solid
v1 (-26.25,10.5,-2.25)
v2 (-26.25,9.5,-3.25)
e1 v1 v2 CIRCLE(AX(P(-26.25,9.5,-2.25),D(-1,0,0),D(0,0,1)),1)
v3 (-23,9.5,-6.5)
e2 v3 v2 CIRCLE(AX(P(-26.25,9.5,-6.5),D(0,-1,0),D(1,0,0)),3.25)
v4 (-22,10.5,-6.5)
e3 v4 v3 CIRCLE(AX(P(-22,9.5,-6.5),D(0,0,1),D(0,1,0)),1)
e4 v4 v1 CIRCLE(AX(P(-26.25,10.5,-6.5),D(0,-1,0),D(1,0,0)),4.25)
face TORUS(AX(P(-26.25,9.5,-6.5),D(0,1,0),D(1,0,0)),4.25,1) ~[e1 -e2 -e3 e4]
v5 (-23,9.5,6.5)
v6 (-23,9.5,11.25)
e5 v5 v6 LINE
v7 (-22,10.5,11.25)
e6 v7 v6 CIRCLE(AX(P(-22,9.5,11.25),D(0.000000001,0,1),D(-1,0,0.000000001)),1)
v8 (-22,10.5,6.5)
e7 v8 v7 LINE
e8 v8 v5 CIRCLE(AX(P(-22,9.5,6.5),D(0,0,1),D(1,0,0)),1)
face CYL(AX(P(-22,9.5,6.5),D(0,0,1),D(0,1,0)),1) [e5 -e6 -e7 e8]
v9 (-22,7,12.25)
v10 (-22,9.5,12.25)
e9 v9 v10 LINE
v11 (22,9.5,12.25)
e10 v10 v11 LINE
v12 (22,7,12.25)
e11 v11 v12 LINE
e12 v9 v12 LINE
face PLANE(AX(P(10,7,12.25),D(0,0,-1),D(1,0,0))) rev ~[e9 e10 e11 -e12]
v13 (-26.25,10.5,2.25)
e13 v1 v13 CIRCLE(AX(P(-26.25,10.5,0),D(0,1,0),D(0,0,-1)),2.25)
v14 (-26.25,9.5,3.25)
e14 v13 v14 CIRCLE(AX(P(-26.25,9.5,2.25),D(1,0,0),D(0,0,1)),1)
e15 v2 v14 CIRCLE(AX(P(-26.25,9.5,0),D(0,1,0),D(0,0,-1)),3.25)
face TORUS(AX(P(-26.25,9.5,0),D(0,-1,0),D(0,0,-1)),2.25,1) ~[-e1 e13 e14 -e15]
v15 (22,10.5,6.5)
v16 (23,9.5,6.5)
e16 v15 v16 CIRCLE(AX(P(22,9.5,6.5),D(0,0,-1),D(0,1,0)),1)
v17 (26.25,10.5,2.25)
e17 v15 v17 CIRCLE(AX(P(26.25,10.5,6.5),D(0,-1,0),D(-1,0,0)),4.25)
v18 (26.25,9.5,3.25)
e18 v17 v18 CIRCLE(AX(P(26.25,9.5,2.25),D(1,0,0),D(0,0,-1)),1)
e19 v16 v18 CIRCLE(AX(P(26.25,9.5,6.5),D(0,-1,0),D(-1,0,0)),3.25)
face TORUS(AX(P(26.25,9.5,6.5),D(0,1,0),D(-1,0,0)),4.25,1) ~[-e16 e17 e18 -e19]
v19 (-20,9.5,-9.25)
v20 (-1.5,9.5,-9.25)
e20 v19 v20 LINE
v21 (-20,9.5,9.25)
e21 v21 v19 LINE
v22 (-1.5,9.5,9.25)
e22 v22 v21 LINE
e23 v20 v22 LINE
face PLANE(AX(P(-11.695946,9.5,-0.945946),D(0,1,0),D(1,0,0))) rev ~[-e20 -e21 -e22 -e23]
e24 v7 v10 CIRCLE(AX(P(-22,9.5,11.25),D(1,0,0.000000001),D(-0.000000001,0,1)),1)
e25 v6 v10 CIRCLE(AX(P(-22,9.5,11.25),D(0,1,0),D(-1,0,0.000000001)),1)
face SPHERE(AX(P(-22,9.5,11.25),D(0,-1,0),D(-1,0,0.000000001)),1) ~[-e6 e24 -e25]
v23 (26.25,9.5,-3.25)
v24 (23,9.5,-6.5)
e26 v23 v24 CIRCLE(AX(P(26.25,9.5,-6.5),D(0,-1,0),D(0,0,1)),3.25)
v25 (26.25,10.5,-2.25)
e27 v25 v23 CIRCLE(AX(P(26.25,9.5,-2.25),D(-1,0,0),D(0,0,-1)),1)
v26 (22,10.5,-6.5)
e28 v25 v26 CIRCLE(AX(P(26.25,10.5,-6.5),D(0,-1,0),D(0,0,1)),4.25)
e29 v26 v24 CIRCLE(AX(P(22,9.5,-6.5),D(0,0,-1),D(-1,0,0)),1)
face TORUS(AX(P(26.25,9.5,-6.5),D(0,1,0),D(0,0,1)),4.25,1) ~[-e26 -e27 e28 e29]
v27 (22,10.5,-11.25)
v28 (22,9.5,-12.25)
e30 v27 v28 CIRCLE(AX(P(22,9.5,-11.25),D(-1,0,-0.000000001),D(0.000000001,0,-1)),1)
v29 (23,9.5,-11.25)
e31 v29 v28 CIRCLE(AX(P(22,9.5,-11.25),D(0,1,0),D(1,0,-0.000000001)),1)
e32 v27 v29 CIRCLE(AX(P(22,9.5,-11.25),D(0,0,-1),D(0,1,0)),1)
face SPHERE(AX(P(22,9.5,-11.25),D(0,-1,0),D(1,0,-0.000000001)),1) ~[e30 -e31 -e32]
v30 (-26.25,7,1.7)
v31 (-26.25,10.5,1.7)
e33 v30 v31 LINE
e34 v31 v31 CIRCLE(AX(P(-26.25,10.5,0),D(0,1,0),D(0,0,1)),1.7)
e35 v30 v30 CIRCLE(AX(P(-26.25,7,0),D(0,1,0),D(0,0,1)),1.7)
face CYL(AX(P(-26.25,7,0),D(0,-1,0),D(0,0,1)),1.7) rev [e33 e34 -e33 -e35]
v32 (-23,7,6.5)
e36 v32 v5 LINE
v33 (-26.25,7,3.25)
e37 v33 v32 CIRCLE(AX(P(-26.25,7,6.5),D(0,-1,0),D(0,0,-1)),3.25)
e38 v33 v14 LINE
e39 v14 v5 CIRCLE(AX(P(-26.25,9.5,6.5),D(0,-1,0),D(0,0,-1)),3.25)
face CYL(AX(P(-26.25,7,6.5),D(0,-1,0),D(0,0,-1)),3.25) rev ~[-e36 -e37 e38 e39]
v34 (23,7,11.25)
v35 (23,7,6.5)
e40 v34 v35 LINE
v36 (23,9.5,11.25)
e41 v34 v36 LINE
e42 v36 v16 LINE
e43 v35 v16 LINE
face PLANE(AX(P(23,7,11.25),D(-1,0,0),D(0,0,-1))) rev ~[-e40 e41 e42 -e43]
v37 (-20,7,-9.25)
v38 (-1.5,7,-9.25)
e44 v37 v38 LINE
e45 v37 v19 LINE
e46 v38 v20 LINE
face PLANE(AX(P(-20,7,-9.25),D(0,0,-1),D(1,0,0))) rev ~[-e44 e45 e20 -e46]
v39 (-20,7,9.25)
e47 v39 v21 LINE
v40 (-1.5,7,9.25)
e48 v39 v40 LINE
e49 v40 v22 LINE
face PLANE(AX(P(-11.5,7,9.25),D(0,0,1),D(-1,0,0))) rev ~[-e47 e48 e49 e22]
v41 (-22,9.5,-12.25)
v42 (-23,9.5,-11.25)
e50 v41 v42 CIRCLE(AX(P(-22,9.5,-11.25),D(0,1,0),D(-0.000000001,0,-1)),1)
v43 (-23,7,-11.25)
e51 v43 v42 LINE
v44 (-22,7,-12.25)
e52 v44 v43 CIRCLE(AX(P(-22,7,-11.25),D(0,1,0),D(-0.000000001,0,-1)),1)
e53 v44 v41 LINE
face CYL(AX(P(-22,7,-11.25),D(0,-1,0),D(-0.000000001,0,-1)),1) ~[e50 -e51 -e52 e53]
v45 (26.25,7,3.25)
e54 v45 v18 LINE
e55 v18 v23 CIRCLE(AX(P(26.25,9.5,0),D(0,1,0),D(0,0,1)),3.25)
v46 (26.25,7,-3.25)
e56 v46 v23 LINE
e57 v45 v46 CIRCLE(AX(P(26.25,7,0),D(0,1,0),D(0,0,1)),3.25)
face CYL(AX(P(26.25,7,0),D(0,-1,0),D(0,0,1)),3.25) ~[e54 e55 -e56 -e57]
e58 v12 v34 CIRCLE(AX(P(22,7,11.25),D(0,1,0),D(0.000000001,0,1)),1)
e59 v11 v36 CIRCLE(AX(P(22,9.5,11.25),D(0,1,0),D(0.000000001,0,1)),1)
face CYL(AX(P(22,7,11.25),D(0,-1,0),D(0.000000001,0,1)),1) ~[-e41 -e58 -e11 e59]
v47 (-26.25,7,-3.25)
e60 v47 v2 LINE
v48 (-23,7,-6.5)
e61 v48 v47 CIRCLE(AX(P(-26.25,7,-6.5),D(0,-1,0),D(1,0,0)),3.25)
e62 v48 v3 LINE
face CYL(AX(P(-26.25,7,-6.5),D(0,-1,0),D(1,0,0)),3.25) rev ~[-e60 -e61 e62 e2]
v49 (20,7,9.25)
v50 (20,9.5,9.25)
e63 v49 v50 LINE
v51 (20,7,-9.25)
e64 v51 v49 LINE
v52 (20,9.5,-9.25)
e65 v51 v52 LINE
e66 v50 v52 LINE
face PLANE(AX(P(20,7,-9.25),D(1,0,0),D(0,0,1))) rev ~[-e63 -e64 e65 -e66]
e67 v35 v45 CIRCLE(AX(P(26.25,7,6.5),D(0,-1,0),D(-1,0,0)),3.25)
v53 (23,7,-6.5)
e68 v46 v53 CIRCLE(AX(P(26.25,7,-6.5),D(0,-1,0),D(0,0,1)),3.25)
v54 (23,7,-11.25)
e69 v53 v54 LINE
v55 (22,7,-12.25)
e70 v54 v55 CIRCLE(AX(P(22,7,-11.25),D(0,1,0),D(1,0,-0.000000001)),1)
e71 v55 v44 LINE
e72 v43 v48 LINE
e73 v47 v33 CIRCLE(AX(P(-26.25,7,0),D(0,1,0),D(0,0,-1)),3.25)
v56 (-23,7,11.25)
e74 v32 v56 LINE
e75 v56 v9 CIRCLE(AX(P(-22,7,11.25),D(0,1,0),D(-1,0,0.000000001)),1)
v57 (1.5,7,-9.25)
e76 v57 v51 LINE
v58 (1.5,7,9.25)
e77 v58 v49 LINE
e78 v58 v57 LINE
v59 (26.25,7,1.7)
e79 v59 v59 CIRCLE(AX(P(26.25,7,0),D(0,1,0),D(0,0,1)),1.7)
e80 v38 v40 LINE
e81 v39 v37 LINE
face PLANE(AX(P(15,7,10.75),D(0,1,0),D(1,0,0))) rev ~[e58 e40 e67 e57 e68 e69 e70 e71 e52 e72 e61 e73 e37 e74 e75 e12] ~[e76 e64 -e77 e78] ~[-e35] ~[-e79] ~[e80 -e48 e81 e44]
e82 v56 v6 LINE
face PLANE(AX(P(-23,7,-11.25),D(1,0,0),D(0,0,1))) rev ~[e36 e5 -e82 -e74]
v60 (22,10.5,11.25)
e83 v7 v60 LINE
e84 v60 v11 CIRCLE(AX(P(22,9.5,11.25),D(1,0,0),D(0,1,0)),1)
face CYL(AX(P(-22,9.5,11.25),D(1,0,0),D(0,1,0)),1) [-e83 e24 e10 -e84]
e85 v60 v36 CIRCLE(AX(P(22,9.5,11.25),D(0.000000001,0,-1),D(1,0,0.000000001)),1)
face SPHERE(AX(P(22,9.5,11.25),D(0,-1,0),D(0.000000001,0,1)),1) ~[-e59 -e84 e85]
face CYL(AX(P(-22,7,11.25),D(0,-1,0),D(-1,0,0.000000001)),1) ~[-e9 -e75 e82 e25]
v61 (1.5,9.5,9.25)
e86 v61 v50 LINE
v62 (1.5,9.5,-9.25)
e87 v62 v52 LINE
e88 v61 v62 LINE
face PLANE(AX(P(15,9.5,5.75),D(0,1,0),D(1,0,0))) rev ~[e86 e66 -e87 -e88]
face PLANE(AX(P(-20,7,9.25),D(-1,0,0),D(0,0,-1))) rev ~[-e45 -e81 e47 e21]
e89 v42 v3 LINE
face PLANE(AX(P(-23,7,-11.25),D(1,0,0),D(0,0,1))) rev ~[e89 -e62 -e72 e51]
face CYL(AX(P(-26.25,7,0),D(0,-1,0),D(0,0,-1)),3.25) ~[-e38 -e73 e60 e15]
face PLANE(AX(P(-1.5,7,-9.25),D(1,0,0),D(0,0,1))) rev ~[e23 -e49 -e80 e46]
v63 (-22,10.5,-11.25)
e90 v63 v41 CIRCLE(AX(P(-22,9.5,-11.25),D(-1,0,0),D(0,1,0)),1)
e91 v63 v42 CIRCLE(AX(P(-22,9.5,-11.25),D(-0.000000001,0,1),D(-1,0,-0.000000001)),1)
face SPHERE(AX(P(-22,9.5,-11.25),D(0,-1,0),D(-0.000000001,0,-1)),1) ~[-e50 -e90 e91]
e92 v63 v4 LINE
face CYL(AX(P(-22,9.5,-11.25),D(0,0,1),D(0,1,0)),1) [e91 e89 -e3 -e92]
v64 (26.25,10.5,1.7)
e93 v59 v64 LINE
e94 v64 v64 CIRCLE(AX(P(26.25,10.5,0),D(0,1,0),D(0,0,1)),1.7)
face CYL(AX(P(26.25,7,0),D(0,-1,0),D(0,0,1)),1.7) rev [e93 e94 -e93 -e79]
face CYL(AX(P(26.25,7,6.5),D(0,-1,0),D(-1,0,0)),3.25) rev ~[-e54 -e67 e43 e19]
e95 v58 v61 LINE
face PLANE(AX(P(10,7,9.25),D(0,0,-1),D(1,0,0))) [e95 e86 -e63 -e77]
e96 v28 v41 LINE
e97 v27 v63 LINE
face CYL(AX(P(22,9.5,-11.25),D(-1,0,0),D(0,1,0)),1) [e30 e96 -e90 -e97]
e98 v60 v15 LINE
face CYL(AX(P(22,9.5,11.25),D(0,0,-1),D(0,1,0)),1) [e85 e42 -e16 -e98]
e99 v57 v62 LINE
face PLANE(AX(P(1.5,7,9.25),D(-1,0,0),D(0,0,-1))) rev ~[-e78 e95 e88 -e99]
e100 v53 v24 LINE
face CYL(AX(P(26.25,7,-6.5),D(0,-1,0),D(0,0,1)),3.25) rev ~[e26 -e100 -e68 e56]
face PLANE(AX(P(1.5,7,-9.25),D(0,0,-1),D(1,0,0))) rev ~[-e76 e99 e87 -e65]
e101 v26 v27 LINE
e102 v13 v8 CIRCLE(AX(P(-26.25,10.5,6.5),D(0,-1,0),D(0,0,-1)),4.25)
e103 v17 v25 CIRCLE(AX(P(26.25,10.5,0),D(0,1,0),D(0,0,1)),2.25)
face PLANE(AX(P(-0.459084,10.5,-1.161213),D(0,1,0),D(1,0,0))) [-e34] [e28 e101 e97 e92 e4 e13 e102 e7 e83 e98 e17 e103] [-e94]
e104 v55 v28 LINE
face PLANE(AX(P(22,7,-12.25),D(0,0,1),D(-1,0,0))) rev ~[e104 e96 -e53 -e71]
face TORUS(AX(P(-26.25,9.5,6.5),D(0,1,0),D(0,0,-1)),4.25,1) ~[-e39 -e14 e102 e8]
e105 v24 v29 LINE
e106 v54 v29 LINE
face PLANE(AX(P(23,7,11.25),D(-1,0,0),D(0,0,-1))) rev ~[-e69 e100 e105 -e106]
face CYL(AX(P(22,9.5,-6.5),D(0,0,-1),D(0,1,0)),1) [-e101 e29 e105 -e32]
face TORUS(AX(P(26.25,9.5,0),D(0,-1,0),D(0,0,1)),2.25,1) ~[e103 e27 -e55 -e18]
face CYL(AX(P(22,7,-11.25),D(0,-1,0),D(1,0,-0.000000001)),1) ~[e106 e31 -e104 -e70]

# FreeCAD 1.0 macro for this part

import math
import FreeCAD as App
import Part
import Sketcher

V = App.Vector


def edges_at(feature, points):
    """Names of the edges that pass closest to the given points."""
    edges = feature.Shape.Edges
    near = lambda p: min(range(len(edges)), key=lambda i: edges[i].distToShape(Part.Vertex(*p))[0])
    return sorted({f"Edge{near(p) + 1}" for p in points})

doc = App.newDocument("Part")
params = doc.addObject("Spreadsheet::Sheet", "Params")
for row, (alias, value) in enumerate([
    ("sketch1_radius", "1 mm"),
    ("sketch1_diameter", "3.4 mm"),
    ("sketch1_width", "44 mm"),
    ("sketch1_radius2", "3.25 mm"),
    ("pad1_length", "1 mm"),
    ("sketch2_radius", "1 mm"),
    ("sketch2_diameter", "3.4 mm"),
    ("sketch2_width", "2 mm"),
    ("sketch2_width2", "44 mm"),
    ("sketch2_width3", "10 mm"),
    ("pad2_length", "1 mm"),
    ("sketch3_radius", "1 mm"),
    ("sketch3_diameter", "3.4 mm"),
    ("sketch3_width", "2 mm"),
    ("sketch3_width2", "44 mm"),
    ("sketch3_height", "3 mm"),
    ("pad3_length", "3 mm"),
    ("sketch4_radius", "1 mm"),
    ("sketch4_diameter", "3.4 mm"),
    ("sketch4_width", "44 mm"),
    ("sketch4_radius2", "3.25 mm"),
    ("sketch4_width2", "18.5 mm"),
    ("pad4_length", "2.5 mm"),
    ("sketch5_radius", "1 mm"),
    ("sketch5_diameter", "3.4 mm"),
    ("sketch5_width", "44 mm"),
    ("sketch5_radius2", "3.25 mm"),
    ("pad5_length", "1 mm"),
    ("fillet_radius", "1 mm"),
], start=1):
    params.set(f"A{row}", alias)
    params.set(f"B{row}", "=" + value)
    params.setAlias(f"B{row}", alias)

body = doc.addObject("PartDesign::Body", "Body")

# Sketch on XZ plane
sketch1 = doc.addObject("Sketcher::SketchObject", "Sketch")
body.addObject(sketch1)
sketch1.AttachmentSupport = (doc.XZ_Plane, [""])
sketch1.MapMode = "FlatFace"
sketch1.addGeometry([
    Part.ArcOfCircle(Part.Circle(V(-26.2, 6.5, 0), V(0, 0, 1), 3.2), math.radians(-90), math.radians(0)),  # 0
    Part.LineSegment(V(-23, 6.5, 0), V(-23, 11.2, 0)),  # 1
    Part.ArcOfCircle(Part.Circle(V(-22, 11.2, 0), V(0, 0, 1), 1), math.radians(90), math.radians(180)),  # 2
    Part.LineSegment(V(-22, 12.2, 0), V(22, 12.2, 0)),  # 3
    Part.ArcOfCircle(Part.Circle(V(22, 11.2, 0), V(0, 0, 1), 1), math.radians(0), math.radians(90)),  # 4
    Part.LineSegment(V(23, 11.2, 0), V(23, 6.5, 0)),  # 5
    Part.ArcOfCircle(Part.Circle(V(26.2, 6.5, 0), V(0, 0, 1), 3.2), math.radians(180), math.radians(270)),  # 6
    Part.ArcOfCircle(Part.Circle(V(26.2, 0, 0), V(0, 0, 1), 3.2), math.radians(-90), math.radians(90)),  # 7
    Part.ArcOfCircle(Part.Circle(V(26.2, -6.5, 0), V(0, 0, 1), 3.2), math.radians(90), math.radians(180)),  # 8
    Part.LineSegment(V(23, -6.5, 0), V(23, -11.2, 0)),  # 9
    Part.ArcOfCircle(Part.Circle(V(22, -11.2, 0), V(0, 0, 1), 1), math.radians(-90), math.radians(0)),  # 10
    Part.LineSegment(V(22, -12.2, 0), V(-22, -12.2, 0)),  # 11
    Part.ArcOfCircle(Part.Circle(V(-22, -11.2, 0), V(0, 0, 1), 1), math.radians(-180), math.radians(-90)),  # 12
    Part.LineSegment(V(-23, -11.2, 0), V(-23, -6.5, 0)),  # 13
    Part.ArcOfCircle(Part.Circle(V(-26.2, -6.5, 0), V(0, 0, 1), 3.2), math.radians(0), math.radians(90)),  # 14
    Part.ArcOfCircle(Part.Circle(V(-26.2, 0, 0), V(0, 0, 1), 3.2), math.radians(90), math.radians(270)),  # 15
    Part.Circle(V(-26.2, 0, 0), V(0, 0, 1), 1.7),  # 16
    Part.Circle(V(26.2, 0, 0), V(0, 0, 1), 1.7),  # 17
], False)
sketch1.addConstraint([
    Sketcher.Constraint("Tangent", 0, 2, 1, 1),
    Sketcher.Constraint("Tangent", 1, 2, 2, 2),
    Sketcher.Constraint("Tangent", 2, 1, 3, 1),
    Sketcher.Constraint("Tangent", 3, 2, 4, 2),
    Sketcher.Constraint("Tangent", 4, 1, 5, 1),
    Sketcher.Constraint("Tangent", 5, 2, 6, 1),
    Sketcher.Constraint("Tangent", 6, 2, 7, 2),
    Sketcher.Constraint("Tangent", 7, 1, 8, 1),
    Sketcher.Constraint("Tangent", 8, 2, 9, 1),
    Sketcher.Constraint("Tangent", 9, 2, 10, 2),
    Sketcher.Constraint("Tangent", 10, 1, 11, 1),
    Sketcher.Constraint("Tangent", 11, 2, 12, 2),
    Sketcher.Constraint("Tangent", 12, 1, 13, 1),
    Sketcher.Constraint("Tangent", 13, 2, 14, 1),
    Sketcher.Constraint("Tangent", 14, 2, 15, 2),
    Sketcher.Constraint("Tangent", 15, 1, 0, 1),
    Sketcher.Constraint("Vertical", 1),
    Sketcher.Constraint("Horizontal", 3),
    Sketcher.Constraint("Vertical", 5),
    Sketcher.Constraint("Vertical", 9),
    Sketcher.Constraint("Horizontal", 11),
    Sketcher.Constraint("Vertical", 13),
    Sketcher.Constraint("Coincident", 16, 3, 15, 3),
    Sketcher.Constraint("Coincident", 17, 3, 7, 3),
    Sketcher.Constraint("Equal", 2, 4),
    Sketcher.Constraint("Equal", 0, 6),
    Sketcher.Constraint("Equal", 6, 7),
    Sketcher.Constraint("Equal", 7, 8),
    Sketcher.Constraint("Equal", 4, 10),
    Sketcher.Constraint("Equal", 10, 12),
    Sketcher.Constraint("Equal", 8, 14),
    Sketcher.Constraint("Equal", 14, 15),
    Sketcher.Constraint("Equal", 16, 17),
    Sketcher.Constraint("Symmetric", 0, 3, 8, 3, -1, 1),
    Sketcher.Constraint("Symmetric", 4, 3, 12, 3, -1, 1),
    Sketcher.Constraint("Symmetric", 0, 3, 6, 3, -2),
    Sketcher.Constraint("Vertical", 6, 3, 7, 3),
    Sketcher.Constraint("Vertical", 14, 3, 15, 3),
    Sketcher.Constraint("Radius", 2, 1.0),
    Sketcher.Constraint("Diameter", 16, 3.4),
    Sketcher.Constraint("DistanceX", 3, 1, 3, 2, 44.0),
    Sketcher.Constraint("Radius", 0, 3.25),
    Sketcher.Constraint("DistanceY", 6, 2, 4, 1, 8.0),
])
sketch1.setExpression("Constraints[38]", "Params.sketch1_radius")
sketch1.setExpression("Constraints[39]", "Params.sketch1_diameter")
sketch1.setExpression("Constraints[40]", "Params.sketch1_width")
sketch1.setExpression("Constraints[41]", "Params.sketch1_radius2")
pad1 = doc.addObject("PartDesign::Pad", "Pad")
body.addObject(pad1)
pad1.Profile = sketch1
pad1.setExpression("Length", "Params.pad1_length")
pad1.Reversed = True

# Sketch on XZ plane
sketch2 = doc.addObject("Sketcher::SketchObject", "Sketch001")
body.addObject(sketch2)
sketch2.AttachmentSupport = (doc.XZ_Plane, [""])
sketch2.MapMode = "FlatFace"
sketch2.AttachmentOffset = App.Placement(V(0, 0, -1), App.Rotation())
sketch2.addGeometry([
    Part.LineSegment(V(20, 12.2, 0), V(22, 12.2, 0)),  # 0
    Part.ArcOfCircle(Part.Circle(V(22, 11.2, 0), V(0, 0, 1), 1), math.radians(0), math.radians(90)),  # 1
    Part.LineSegment(V(23, 11.2, 0), V(23, 6.5, 0)),  # 2
    Part.ArcOfCircle(Part.Circle(V(26.2, 6.5, 0), V(0, 0, 1), 3.2), math.radians(180), math.radians(270)),  # 3
    Part.ArcOfCircle(Part.Circle(V(26.2, 0, 0), V(0, 0, 1), 3.2), math.radians(-90), math.radians(90)),  # 4
    Part.ArcOfCircle(Part.Circle(V(26.2, -6.5, 0), V(0, 0, 1), 3.2), math.radians(90), math.radians(180)),  # 5
    Part.LineSegment(V(23, -6.5, 0), V(23, -11.2, 0)),  # 6
    Part.ArcOfCircle(Part.Circle(V(22, -11.2, 0), V(0, 0, 1), 1), math.radians(-90), math.radians(0)),  # 7
    Part.LineSegment(V(22, -12.2, 0), V(-22, -12.2, 0)),  # 8
    Part.ArcOfCircle(Part.Circle(V(-22, -11.2, 0), V(0, 0, 1), 1), math.radians(-180), math.radians(-90)),  # 9
    Part.LineSegment(V(-23, -11.2, 0), V(-23, -6.5, 0)),  # 10
    Part.ArcOfCircle(Part.Circle(V(-26.2, -6.5, 0), V(0, 0, 1), 3.2), math.radians(0), math.radians(90)),  # 11
    Part.ArcOfCircle(Part.Circle(V(-26.2, 0, 0), V(0, 0, 1), 3.2), math.radians(90), math.radians(270)),  # 12
    Part.ArcOfCircle(Part.Circle(V(-26.2, 6.5, 0), V(0, 0, 1), 3.2), math.radians(-90), math.radians(0)),  # 13
    Part.LineSegment(V(-23, 6.5, 0), V(-23, 11.2, 0)),  # 14
    Part.ArcOfCircle(Part.Circle(V(-22, 11.2, 0), V(0, 0, 1), 1), math.radians(90), math.radians(180)),  # 15
    Part.LineSegment(V(-22, 12.2, 0), V(-11.5, 12.2, 0)),  # 16
    Part.LineSegment(V(-11.5, 12.2, 0), V(-11.5, 2.2, 0)),  # 17
    Part.LineSegment(V(-11.5, 2.2, 0), V(-1.5, 2.2, 0)),  # 18
    Part.LineSegment(V(-1.5, 2.2, 0), V(-1.5, 12.2, 0)),  # 19
    Part.LineSegment(V(-1.5, 12.2, 0), V(10, 12.2, 0)),  # 20
    Part.LineSegment(V(10, 12.2, 0), V(10, 2.2, 0)),  # 21
    Part.LineSegment(V(10, 2.2, 0), V(20, 2.2, 0)),  # 22
    Part.LineSegment(V(20, 2.2, 0), V(20, 12.2, 0)),  # 23
    Part.Circle(V(26.2, 0, 0), V(0, 0, 1), 1.7),  # 24
    Part.Circle(V(-26.2, 0, 0), V(0, 0, 1), 1.7),  # 25
], False)
sketch2.addConstraint([
    Sketcher.Constraint("Tangent", 0, 2, 1, 2),
    Sketcher.Constraint("Tangent", 1, 1, 2, 1),
    Sketcher.Constraint("Tangent", 2, 2, 3, 1),
    Sketcher.Constraint("Tangent", 3, 2, 4, 2),
    Sketcher.Constraint("Tangent", 4, 1, 5, 1),
    Sketcher.Constraint("Tangent", 5, 2, 6, 1),
    Sketcher.Constraint("Tangent", 6, 2, 7, 2),
    Sketcher.Constraint("Tangent", 7, 1, 8, 1),
    Sketcher.Constraint("Tangent", 8, 2, 9, 2),
    Sketcher.Constraint("Tangent", 9, 1, 10, 1),
    Sketcher.Constraint("Tangent", 10, 2, 11, 1),
    Sketcher.Constraint("Tangent", 11, 2, 12, 2),
    Sketcher.Constraint("Tangent", 12, 1, 13, 1),
    Sketcher.Constraint("Tangent", 13, 2, 14, 1),
    Sketcher.Constraint("Tangent", 14, 2, 15, 2),
    Sketcher.Constraint("Tangent", 15, 1, 16, 1),
    Sketcher.Constraint("Coincident", 16, 2, 17, 1),
    Sketcher.Constraint("Coincident", 17, 2, 18, 1),
    Sketcher.Constraint("Coincident", 18, 2, 19, 1),
    Sketcher.Constraint("Coincident", 19, 2, 20, 1),
    Sketcher.Constraint("Coincident", 20, 2, 21, 1),
    Sketcher.Constraint("Coincident", 21, 2, 22, 1),
    Sketcher.Constraint("Coincident", 22, 2, 23, 1),
    Sketcher.Constraint("Coincident", 23, 2, 0, 1),
    Sketcher.Constraint("Horizontal", 0),
    Sketcher.Constraint("Vertical", 2),
    Sketcher.Constraint("Vertical", 6),
    Sketcher.Constraint("Horizontal", 8),
    Sketcher.Constraint("Vertical", 10),
    Sketcher.Constraint("Vertical", 14),
    Sketcher.Constraint("Horizontal", 16),
    Sketcher.Constraint("Vertical", 17),
    Sketcher.Constraint("Horizontal", 18),
    Sketcher.Constraint("Vertical", 19),
    Sketcher.Constraint("Horizontal", 20),
    Sketcher.Constraint("Vertical", 21),
    Sketcher.Constraint("Horizontal", 22),
    Sketcher.Constraint("Vertical", 23),
    Sketcher.Constraint("Coincident", 24, 3, 4, 3),
    Sketcher.Constraint("Coincident", 25, 3, 12, 3),
    Sketcher.Constraint("Equal", 3, 4),
    Sketcher.Constraint("Equal", 4, 5),
    Sketcher.Constraint("Equal", 1, 7),
    Sketcher.Constraint("Equal", 7, 9),
    Sketcher.Constraint("Equal", 5, 11),
    Sketcher.Constraint("Equal", 11, 12),
    Sketcher.Constraint("Equal", 12, 13),
    Sketcher.Constraint("Equal", 9, 15),
    Sketcher.Constraint("Equal", 24, 25),
    Sketcher.Constraint("Symmetric", 1, 3, 9, 3, -1, 1),
    Sketcher.Constraint("Symmetric", 4, 3, 12, 3, -1, 1),
    Sketcher.Constraint("Symmetric", 7, 3, 15, 3, -1, 1),
    Sketcher.Constraint("Symmetric", 5, 3, 11, 3, -2),
    Sketcher.Constraint("Horizontal", 16, 2, 19, 2),
    Sketcher.Constraint("Horizontal", 18, 2, 21, 2),
    Sketcher.Constraint("Vertical", 3, 3, 4, 3),
    Sketcher.Constraint("Equal", 18, 22),
    Sketcher.Constraint("Equal", 22, 17),
    Sketcher.Constraint("Radius", 1, 1.0),
    Sketcher.Constraint("Diameter", 24, 3.4),
    Sketcher.Constraint("DistanceX", 0, 1, 0, 2, 2.0),
    Sketcher.Constraint("DistanceX", 8, 2, 8, 1, 44.0),
    Sketcher.Constraint("DistanceX", 18, 1, 18, 2, 10.0),
    Sketcher.Constraint("Radius", 3, 3.25),
    Sketcher.Constraint("DistanceX", 16, 1, 16, 2, 10.5),
    Sketcher.Constraint("DistanceY", 3, 2, 1, 1, 8.0),
])
sketch2.setExpression("Constraints[58]", "Params.sketch2_radius")
sketch2.setExpression("Constraints[59]", "Params.sketch2_diameter")
sketch2.setExpression("Constraints[60]", "Params.sketch2_width")
sketch2.setExpression("Constraints[61]", "Params.sketch2_width2")
sketch2.setExpression("Constraints[62]", "Params.sketch2_width3")
pad2 = doc.addObject("PartDesign::Pad", "Pad001")
body.addObject(pad2)
pad2.Profile = sketch2
pad2.setExpression("Length", "Params.pad2_length")
pad2.Reversed = True

# Sketch on XZ plane
sketch3 = doc.addObject("Sketcher::SketchObject", "Sketch002")
body.addObject(sketch3)
sketch3.AttachmentSupport = (doc.XZ_Plane, [""])
sketch3.MapMode = "FlatFace"
sketch3.AttachmentOffset = App.Placement(V(0, 0, -2), App.Rotation())
sketch3.addGeometry([
    Part.LineSegment(V(20, 12.2, 0), V(22, 12.2, 0)),  # 0
    Part.ArcOfCircle(Part.Circle(V(22, 11.2, 0), V(0, 0, 1), 1), math.radians(0), math.radians(90)),  # 1
    Part.LineSegment(V(23, 11.2, 0), V(23, 6.5, 0)),  # 2
    Part.ArcOfCircle(Part.Circle(V(26.2, 6.5, 0), V(0, 0, 1), 3.2), math.radians(180), math.radians(270)),  # 3
    Part.ArcOfCircle(Part.Circle(V(26.2, 0, 0), V(0, 0, 1), 3.2), math.radians(-90), math.radians(90)),  # 4
    Part.ArcOfCircle(Part.Circle(V(26.2, -6.5, 0), V(0, 0, 1), 3.2), math.radians(90), math.radians(180)),  # 5
    Part.LineSegment(V(23, -6.5, 0), V(23, -11.2, 0)),  # 6
    Part.ArcOfCircle(Part.Circle(V(22, -11.2, 0), V(0, 0, 1), 1), math.radians(-90), math.radians(0)),  # 7
    Part.LineSegment(V(22, -12.2, 0), V(-22, -12.2, 0)),  # 8
    Part.ArcOfCircle(Part.Circle(V(-22, -11.2, 0), V(0, 0, 1), 1), math.radians(-180), math.radians(-90)),  # 9
    Part.LineSegment(V(-23, -11.2, 0), V(-23, -6.5, 0)),  # 10
    Part.ArcOfCircle(Part.Circle(V(-26.2, -6.5, 0), V(0, 0, 1), 3.2), math.radians(0), math.radians(90)),  # 11
    Part.ArcOfCircle(Part.Circle(V(-26.2, 0, 0), V(0, 0, 1), 3.2), math.radians(90), math.radians(270)),  # 12
    Part.ArcOfCircle(Part.Circle(V(-26.2, 6.5, 0), V(0, 0, 1), 3.2), math.radians(-90), math.radians(0)),  # 13
    Part.LineSegment(V(-23, 6.5, 0), V(-23, 11.2, 0)),  # 14
    Part.ArcOfCircle(Part.Circle(V(-22, 11.2, 0), V(0, 0, 1), 1), math.radians(90), math.radians(180)),  # 15
    Part.LineSegment(V(-22, 12.2, 0), V(-11.5, 12.2, 0)),  # 16
    Part.LineSegment(V(-11.5, 12.2, 0), V(-11.5, 9.2, 0)),  # 17
    Part.LineSegment(V(-11.5, 9.2, 0), V(-20, 9.2, 0)),  # 18
    Part.LineSegment(V(-20, 9.2, 0), V(-20, -9.2, 0)),  # 19
    Part.LineSegment(V(-20, -9.2, 0), V(-1.5, -9.2, 0)),  # 20
    Part.LineSegment(V(-1.5, -9.2, 0), V(-1.5, 12.2, 0)),  # 21
    Part.LineSegment(V(-1.5, 12.2, 0), V(10, 12.2, 0)),  # 22
    Part.LineSegment(V(10, 12.2, 0), V(10, 9.2, 0)),  # 23
    Part.LineSegment(V(10, 9.2, 0), V(1.5, 9.2, 0)),  # 24
    Part.LineSegment(V(1.5, 9.2, 0), V(1.5, -9.2, 0)),  # 25
    Part.LineSegment(V(1.5, -9.2, 0), V(20, -9.2, 0)),  # 26
    Part.LineSegment(V(20, -9.2, 0), V(20, 12.2, 0)),  # 27
    Part.Circle(V(26.2, 0, 0), V(0, 0, 1), 1.7),  # 28
    Part.Circle(V(-26.2, 0, 0), V(0, 0, 1), 1.7),  # 29
], False)
sketch3.addConstraint([
    Sketcher.Constraint("Tangent", 0, 2, 1, 2),
    Sketcher.Constraint("Tangent", 1, 1, 2, 1),
    Sketcher.Constraint("Tangent", 2, 2, 3, 1),
    Sketcher.Constraint("Tangent", 3, 2, 4, 2),
    Sketcher.Constraint("Tangent", 4, 1, 5, 1),
    Sketcher.Constraint("Tangent", 5, 2, 6, 1),
    Sketcher.Constraint("Tangent", 6, 2, 7, 2),
    Sketcher.Constraint("Tangent", 7, 1, 8, 1),
    Sketcher.Constraint("Tangent", 8, 2, 9, 2),
    Sketcher.Constraint("Tangent", 9, 1, 10, 1),
    Sketcher.Constraint("Tangent", 10, 2, 11, 1),
    Sketcher.Constraint("Tangent", 11, 2, 12, 2),
    Sketcher.Constraint("Tangent", 12, 1, 13, 1),
    Sketcher.Constraint("Tangent", 13, 2, 14, 1),
    Sketcher.Constraint("Tangent", 14, 2, 15, 2),
    Sketcher.Constraint("Tangent", 15, 1, 16, 1),
    Sketcher.Constraint("Coincident", 16, 2, 17, 1),
    Sketcher.Constraint("Coincident", 17, 2, 18, 1),
    Sketcher.Constraint("Coincident", 18, 2, 19, 1),
    Sketcher.Constraint("Coincident", 19, 2, 20, 1),
    Sketcher.Constraint("Coincident", 20, 2, 21, 1),
    Sketcher.Constraint("Coincident", 21, 2, 22, 1),
    Sketcher.Constraint("Coincident", 22, 2, 23, 1),
    Sketcher.Constraint("Coincident", 23, 2, 24, 1),
    Sketcher.Constraint("Coincident", 24, 2, 25, 1),
    Sketcher.Constraint("Coincident", 25, 2, 26, 1),
    Sketcher.Constraint("Coincident", 26, 2, 27, 1),
    Sketcher.Constraint("Coincident", 27, 2, 0, 1),
    Sketcher.Constraint("Horizontal", 0),
    Sketcher.Constraint("Vertical", 2),
    Sketcher.Constraint("Vertical", 6),
    Sketcher.Constraint("Horizontal", 8),
    Sketcher.Constraint("Vertical", 10),
    Sketcher.Constraint("Vertical", 14),
    Sketcher.Constraint("Horizontal", 16),
    Sketcher.Constraint("Vertical", 17),
    Sketcher.Constraint("Horizontal", 18),
    Sketcher.Constraint("Vertical", 19),
    Sketcher.Constraint("Horizontal", 20),
    Sketcher.Constraint("Vertical", 21),
    Sketcher.Constraint("Horizontal", 22),
    Sketcher.Constraint("Vertical", 23),
    Sketcher.Constraint("Horizontal", 24),
    Sketcher.Constraint("Vertical", 25),
    Sketcher.Constraint("Horizontal", 26),
    Sketcher.Constraint("Vertical", 27),
    Sketcher.Constraint("Coincident", 28, 3, 4, 3),
    Sketcher.Constraint("Coincident", 29, 3, 12, 3),
    Sketcher.Constraint("Equal", 3, 4),
    Sketcher.Constraint("Equal", 4, 5),
    Sketcher.Constraint("Equal", 1, 7),
    Sketcher.Constraint("Equal", 7, 9),
    Sketcher.Constraint("Equal", 5, 11),
    Sketcher.Constraint("Equal", 11, 12),
    Sketcher.Constraint("Equal", 12, 13),
    Sketcher.Constraint("Equal", 9, 15),
    Sketcher.Constraint("Equal", 28, 29),
    Sketcher.Constraint("Symmetric", 1, 3, 9, 3, -1, 1),
    Sketcher.Constraint("Symmetric", 4, 3, 12, 3, -1, 1),
    Sketcher.Constraint("Symmetric", 7, 3, 15, 3, -1, 1),
    Sketcher.Constraint("Symmetric", 20, 2, 24, 2, -1, 1),
    Sketcher.Constraint("Symmetric", 18, 2, 26, 2, -1, 1),
    Sketcher.Constraint("Symmetric", 5, 3, 11, 3, -2),
    Sketcher.Constraint("Horizontal", 16, 2, 21, 2),
    Sketcher.Constraint("Horizontal", 18, 2, 23, 2),
    Sketcher.Constraint("Vertical", 3, 3, 4, 3),
    Sketcher.Constraint("Equal", 18, 24),
    Sketcher.Constraint("Equal", 26, 19),
    Sketcher.Constraint("Radius", 1, 1.0),
    Sketcher.Constraint("Diameter", 28, 3.4),
    Sketcher.Constraint("DistanceX", 0, 1, 0, 2, 2.0),
    Sketcher.Constraint("DistanceX", 8, 2, 8, 1, 44.0),
    Sketcher.Constraint("DistanceY", 17, 2, 17, 1, 3.0),
    Sketcher.Constraint("Radius", 3, 3.25),
    Sketcher.Constraint("DistanceX", 16, 1, 16, 2, 10.5),
    Sketcher.Constraint("DistanceX", 20, 1, 20, 2, 18.5),
])
sketch3.setExpression("Constraints[68]", "Params.sketch3_radius")
sketch3.setExpression("Constraints[69]", "Params.sketch3_diameter")
sketch3.setExpression("Constraints[70]", "Params.sketch3_width")
sketch3.setExpression("Constraints[71]", "Params.sketch3_width2")
sketch3.setExpression("Constraints[72]", "Params.sketch3_height")
pad3 = doc.addObject("PartDesign::Pad", "Pad002")
body.addObject(pad3)
pad3.Profile = sketch3
pad3.setExpression("Length", "Params.pad3_length")
pad3.Reversed = True
body2 = doc.addObject("PartDesign::Body", "Body001")

# Sketch on XZ plane
sketch4 = doc.addObject("Sketcher::SketchObject", "Sketch003")
body2.addObject(sketch4)
sketch4.AttachmentSupport = (doc.getObject("XZ_Plane001"), [""])
sketch4.MapMode = "FlatFace"
sketch4.AttachmentOffset = App.Placement(V(0, 0, -7), App.Rotation())
sketch4.addGeometry([
    Part.ArcOfCircle(Part.Circle(V(22, 11.2, 0), V(0, 0, 1), 1), math.radians(0), math.radians(90)),  # 0
    Part.LineSegment(V(23, 11.2, 0), V(23, 6.5, 0)),  # 1
    Part.ArcOfCircle(Part.Circle(V(26.2, 6.5, 0), V(0, 0, 1), 3.2), math.radians(180), math.radians(270)),  # 2
    Part.ArcOfCircle(Part.Circle(V(26.2, 0, 0), V(0, 0, 1), 3.2), math.radians(-90), math.radians(90)),  # 3
    Part.ArcOfCircle(Part.Circle(V(26.2, -6.5, 0), V(0, 0, 1), 3.2), math.radians(90), math.radians(180)),  # 4
    Part.LineSegment(V(23, -6.5, 0), V(23, -11.2, 0)),  # 5
    Part.ArcOfCircle(Part.Circle(V(22, -11.2, 0), V(0, 0, 1), 1), math.radians(-90), math.radians(0)),  # 6
    Part.LineSegment(V(22, -12.2, 0), V(-22, -12.2, 0)),  # 7
    Part.ArcOfCircle(Part.Circle(V(-22, -11.2, 0), V(0, 0, 1), 1), math.radians(-180), math.radians(-90)),  # 8
    Part.LineSegment(V(-23, -11.2, 0), V(-23, -6.5, 0)),  # 9
    Part.ArcOfCircle(Part.Circle(V(-26.2, -6.5, 0), V(0, 0, 1), 3.2), math.radians(0), math.radians(90)),  # 10
    Part.ArcOfCircle(Part.Circle(V(-26.2, 0, 0), V(0, 0, 1), 3.2), math.radians(90), math.radians(270)),  # 11
    Part.ArcOfCircle(Part.Circle(V(-26.2, 6.5, 0), V(0, 0, 1), 3.2), math.radians(-90), math.radians(0)),  # 12
    Part.LineSegment(V(-23, 6.5, 0), V(-23, 11.2, 0)),  # 13
    Part.ArcOfCircle(Part.Circle(V(-22, 11.2, 0), V(0, 0, 1), 1), math.radians(90), math.radians(180)),  # 14
    Part.LineSegment(V(-22, 12.2, 0), V(22, 12.2, 0)),  # 15
    Part.LineSegment(V(-20, 9.2, 0), V(-20, -9.2, 0)),  # 16
    Part.LineSegment(V(-20, -9.2, 0), V(-1.5, -9.2, 0)),  # 17
    Part.LineSegment(V(-1.5, -9.2, 0), V(-1.5, 9.2, 0)),  # 18
    Part.LineSegment(V(-1.5, 9.2, 0), V(-20, 9.2, 0)),  # 19
    Part.LineSegment(V(1.5, 9.2, 0), V(1.5, -9.2, 0)),  # 20
    Part.LineSegment(V(1.5, -9.2, 0), V(20, -9.2, 0)),  # 21
    Part.LineSegment(V(20, -9.2, 0), V(20, 9.2, 0)),  # 22
    Part.LineSegment(V(20, 9.2, 0), V(1.5, 9.2, 0)),  # 23
    Part.Circle(V(26.2, 0, 0), V(0, 0, 1), 1.7),  # 24
    Part.Circle(V(-26.2, 0, 0), V(0, 0, 1), 1.7),  # 25
], False)
sketch4.addConstraint([
    Sketcher.Constraint("Tangent", 0, 1, 1, 1),
    Sketcher.Constraint("Tangent", 1, 2, 2, 1),
    Sketcher.Constraint("Tangent", 2, 2, 3, 2),
    Sketcher.Constraint("Tangent", 3, 1, 4, 1),
    Sketcher.Constraint("Tangent", 4, 2, 5, 1),
    Sketcher.Constraint("Tangent", 5, 2, 6, 2),
    Sketcher.Constraint("Tangent", 6, 1, 7, 1),
    Sketcher.Constraint("Tangent", 7, 2, 8, 2),
    Sketcher.Constraint("Tangent", 8, 1, 9, 1),
    Sketcher.Constraint("Tangent", 9, 2, 10, 1),
    Sketcher.Constraint("Tangent", 10, 2, 11, 2),
    Sketcher.Constraint("Tangent", 11, 1, 12, 1),
    Sketcher.Constraint("Tangent", 12, 2, 13, 1),
    Sketcher.Constraint("Tangent", 13, 2, 14, 2),
    Sketcher.Constraint("Tangent", 14, 1, 15, 1),
    Sketcher.Constraint("Tangent", 15, 2, 0, 2),
    Sketcher.Constraint("Coincident", 16, 2, 17, 1),
    Sketcher.Constraint("Coincident", 17, 2, 18, 1),
    Sketcher.Constraint("Coincident", 18, 2, 19, 1),
    Sketcher.Constraint("Coincident", 19, 2, 16, 1),
    Sketcher.Constraint("Coincident", 20, 2, 21, 1),
    Sketcher.Constraint("Coincident", 21, 2, 22, 1),
    Sketcher.Constraint("Coincident", 22, 2, 23, 1),
    Sketcher.Constraint("Coincident", 23, 2, 20, 1),
    Sketcher.Constraint("Vertical", 1),
    Sketcher.Constraint("Vertical", 5),
    Sketcher.Constraint("Horizontal", 7),
    Sketcher.Constraint("Vertical", 9),
    Sketcher.Constraint("Vertical", 13),
    Sketcher.Constraint("Horizontal", 15),
    Sketcher.Constraint("Vertical", 16),
    Sketcher.Constraint("Horizontal", 17),
    Sketcher.Constraint("Vertical", 18),
    Sketcher.Constraint("Horizontal", 19),
    Sketcher.Constraint("Vertical", 20),
    Sketcher.Constraint("Horizontal", 21),
    Sketcher.Constraint("Vertical", 22),
    Sketcher.Constraint("Horizontal", 23),
    Sketcher.Constraint("Coincident", 24, 3, 3, 3),
    Sketcher.Constraint("Coincident", 25, 3, 11, 3),
    Sketcher.Constraint("Equal", 2, 3),
    Sketcher.Constraint("Equal", 3, 4),
    Sketcher.Constraint("Equal", 0, 6),
    Sketcher.Constraint("Equal", 6, 8),
    Sketcher.Constraint("Equal", 4, 10),
    Sketcher.Constraint("Equal", 10, 11),
    Sketcher.Constraint("Equal", 11, 12),
    Sketcher.Constraint("Equal", 8, 14),
    Sketcher.Constraint("Equal", 24, 25),
    Sketcher.Constraint("Symmetric", 0, 3, 8, 3, -1, 1),
    Sketcher.Constraint("Symmetric", 3, 3, 11, 3, -1, 1),
    Sketcher.Constraint("Symmetric", 18, 2, 20, 2, -1, 1),
    Sketcher.Constraint("Symmetric", 16, 2, 22, 2, -1, 1),
    Sketcher.Constraint("Symmetric", 4, 3, 10, 3, -2),
    Sketcher.Constraint("Horizontal", 17, 2, 20, 2),
    Sketcher.Constraint("Vertical", 2, 3, 3, 3),
    Sketcher.Constraint("Vertical", 11, 3, 12, 3),
    Sketcher.Constraint("Equal", 23, 16),
    Sketcher.Constraint("Radius", 0, 1.0),
    Sketcher.Constraint("Diameter", 24, 3.4),
    Sketcher.Constraint("DistanceX", 7, 2, 7, 1, 44.0),
    Sketcher.Constraint("Radius", 2, 3.25),
    Sketcher.Constraint("DistanceX", 17, 1, 17, 2, 18.5),
    Sketcher.Constraint("DistanceX", 16, 2, -1, 1, 20.0),
    Sketcher.Constraint("DistanceY", 2, 2, 0, 1, 8.0),
])
sketch4.setExpression("Constraints[58]", "Params.sketch4_radius")
sketch4.setExpression("Constraints[59]", "Params.sketch4_diameter")
sketch4.setExpression("Constraints[60]", "Params.sketch4_width")
sketch4.setExpression("Constraints[61]", "Params.sketch4_radius2")
sketch4.setExpression("Constraints[62]", "Params.sketch4_width2")
pad4 = doc.addObject("PartDesign::Pad", "Pad003")
body2.addObject(pad4)
pad4.Profile = sketch4
pad4.setExpression("Length", "Params.pad4_length")
pad4.Reversed = True

# Sketch on XZ plane
sketch5 = doc.addObject("Sketcher::SketchObject", "Sketch004")
body2.addObject(sketch5)
sketch5.AttachmentSupport = (doc.getObject("XZ_Plane001"), [""])
sketch5.MapMode = "FlatFace"
sketch5.AttachmentOffset = App.Placement(V(0, 0, -9.5), App.Rotation())
sketch5.addGeometry([
    Part.ArcOfCircle(Part.Circle(V(22, 11.2, 0), V(0, 0, 1), 1), math.radians(0), math.radians(90)),  # 0
    Part.LineSegment(V(23, 11.2, 0), V(23, 6.5, 0)),  # 1
    Part.ArcOfCircle(Part.Circle(V(26.2, 6.5, 0), V(0, 0, 1), 3.2), math.radians(180), math.radians(270)),  # 2
    Part.ArcOfCircle(Part.Circle(V(26.2, 0, 0), V(0, 0, 1), 3.2), math.radians(-90), math.radians(90)),  # 3
    Part.ArcOfCircle(Part.Circle(V(26.2, -6.5, 0), V(0, 0, 1), 3.2), math.radians(90), math.radians(180)),  # 4
    Part.LineSegment(V(23, -6.5, 0), V(23, -11.2, 0)),  # 5
    Part.ArcOfCircle(Part.Circle(V(22, -11.2, 0), V(0, 0, 1), 1), math.radians(-90), math.radians(0)),  # 6
    Part.LineSegment(V(22, -12.2, 0), V(-22, -12.2, 0)),  # 7
    Part.ArcOfCircle(Part.Circle(V(-22, -11.2, 0), V(0, 0, 1), 1), math.radians(-180), math.radians(-90)),  # 8
    Part.LineSegment(V(-23, -11.2, 0), V(-23, -6.5, 0)),  # 9
    Part.ArcOfCircle(Part.Circle(V(-26.2, -6.5, 0), V(0, 0, 1), 3.2), math.radians(0), math.radians(90)),  # 10
    Part.ArcOfCircle(Part.Circle(V(-26.2, 0, 0), V(0, 0, 1), 3.2), math.radians(90), math.radians(270)),  # 11
    Part.ArcOfCircle(Part.Circle(V(-26.2, 6.5, 0), V(0, 0, 1), 3.2), math.radians(-90), math.radians(0)),  # 12
    Part.LineSegment(V(-23, 6.5, 0), V(-23, 11.2, 0)),  # 13
    Part.ArcOfCircle(Part.Circle(V(-22, 11.2, 0), V(0, 0, 1), 1), math.radians(90), math.radians(180)),  # 14
    Part.LineSegment(V(-22, 12.2, 0), V(22, 12.2, 0)),  # 15
    Part.Circle(V(26.2, 0, 0), V(0, 0, 1), 1.7),  # 16
    Part.Circle(V(-26.2, 0, 0), V(0, 0, 1), 1.7),  # 17
], False)
sketch5.addConstraint([
    Sketcher.Constraint("Tangent", 0, 1, 1, 1),
    Sketcher.Constraint("Tangent", 1, 2, 2, 1),
    Sketcher.Constraint("Tangent", 2, 2, 3, 2),
    Sketcher.Constraint("Tangent", 3, 1, 4, 1),
    Sketcher.Constraint("Tangent", 4, 2, 5, 1),
    Sketcher.Constraint("Tangent", 5, 2, 6, 2),
    Sketcher.Constraint("Tangent", 6, 1, 7, 1),
    Sketcher.Constraint("Tangent", 7, 2, 8, 2),
    Sketcher.Constraint("Tangent", 8, 1, 9, 1),
    Sketcher.Constraint("Tangent", 9, 2, 10, 1),
    Sketcher.Constraint("Tangent", 10, 2, 11, 2),
    Sketcher.Constraint("Tangent", 11, 1, 12, 1),
    Sketcher.Constraint("Tangent", 12, 2, 13, 1),
    Sketcher.Constraint("Tangent", 13, 2, 14, 2),
    Sketcher.Constraint("Tangent", 14, 1, 15, 1),
    Sketcher.Constraint("Tangent", 15, 2, 0, 2),
    Sketcher.Constraint("Vertical", 1),
    Sketcher.Constraint("Vertical", 5),
    Sketcher.Constraint("Horizontal", 7),
    Sketcher.Constraint("Vertical", 9),
    Sketcher.Constraint("Vertical", 13),
    Sketcher.Constraint("Horizontal", 15),
    Sketcher.Constraint("Coincident", 16, 3, 3, 3),
    Sketcher.Constraint("Coincident", 17, 3, 11, 3),
    Sketcher.Constraint("Equal", 2, 3),
    Sketcher.Constraint("Equal", 3, 4),
    Sketcher.Constraint("Equal", 0, 6),
    Sketcher.Constraint("Equal", 6, 8),
    Sketcher.Constraint("Equal", 4, 10),
    Sketcher.Constraint("Equal", 10, 11),
    Sketcher.Constraint("Equal", 11, 12),
    Sketcher.Constraint("Equal", 8, 14),
    Sketcher.Constraint("Equal", 16, 17),
    Sketcher.Constraint("Symmetric", 0, 3, 8, 3, -1, 1),
    Sketcher.Constraint("Symmetric", 3, 3, 11, 3, -1, 1),
    Sketcher.Constraint("Symmetric", 4, 3, 10, 3, -2),
    Sketcher.Constraint("Vertical", 2, 3, 3, 3),
    Sketcher.Constraint("Vertical", 11, 3, 12, 3),
    Sketcher.Constraint("Radius", 0, 1.0),
    Sketcher.Constraint("Diameter", 16, 3.4),
    Sketcher.Constraint("DistanceX", 7, 2, 7, 1, 44.0),
    Sketcher.Constraint("Radius", 2, 3.25),
    Sketcher.Constraint("DistanceY", 2, 2, 0, 1, 8.0),
])
sketch5.setExpression("Constraints[38]", "Params.sketch5_radius")
sketch5.setExpression("Constraints[39]", "Params.sketch5_diameter")
sketch5.setExpression("Constraints[40]", "Params.sketch5_width")
sketch5.setExpression("Constraints[41]", "Params.sketch5_radius2")
pad5 = doc.addObject("PartDesign::Pad", "Pad004")
body2.addObject(pad5)
pad5.Profile = sketch5
pad5.setExpression("Length", "Params.pad5_length")
pad5.Reversed = True
doc.recompute()

fillet = doc.addObject("PartDesign::Fillet", "Fillet")
body2.addObject(fillet)
fillet.Base = (pad5, edges_at(pad5, [
    (-22.707, 10.5, 11.957),
    (-23, 10.5, 8.875),
    (-23.952, 10.5, 4.202),
    (-29.5, 10.5, 0),
    (-23.952, 10.5, -4.202),
    (-22.707, 10.5, -11.957),
    (0, 10.5, -12.25),
    (22.707, 10.5, -11.957),
    (23, 10.5, -8.875),
    (23.952, 10.5, -4.202),
    (29.5, 10.5, 0),
    (23.952, 10.5, 4.202),
    (23, 10.5, 8.875),
    (22.707, 10.5, 11.957),
    (0, 10.5, 12.25),
]))
fillet.setExpression("Radius", "Params.fillet_radius")
body.Visibility = False

doc.recompute()
